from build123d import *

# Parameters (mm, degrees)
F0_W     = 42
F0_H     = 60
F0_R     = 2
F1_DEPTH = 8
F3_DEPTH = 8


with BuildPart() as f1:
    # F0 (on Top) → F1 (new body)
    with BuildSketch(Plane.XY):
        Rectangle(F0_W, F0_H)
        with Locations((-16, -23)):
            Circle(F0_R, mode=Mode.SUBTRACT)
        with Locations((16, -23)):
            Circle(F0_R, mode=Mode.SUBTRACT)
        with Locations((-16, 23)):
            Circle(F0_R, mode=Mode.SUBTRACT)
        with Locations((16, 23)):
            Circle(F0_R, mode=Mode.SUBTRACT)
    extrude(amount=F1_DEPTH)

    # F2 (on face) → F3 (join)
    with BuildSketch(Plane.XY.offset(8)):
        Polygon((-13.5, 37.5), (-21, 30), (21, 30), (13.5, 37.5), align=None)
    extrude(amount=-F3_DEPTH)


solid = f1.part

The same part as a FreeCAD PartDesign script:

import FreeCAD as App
import Part
import Sketcher
from FreeCAD import Vector
Q = App.Units.Quantity


def add_polygon(sketch, points):
    """Adds a closed chain of lines whose ends are joined by coincident constraints."""
    first, n = sketch.GeometryCount, len(points)
    for a, b in zip(points, points[1:] + points[:1]):
        sketch.addGeometry(Part.LineSegment(App.Vector(*a, 0), App.Vector(*b, 0)), False)
    for i in range(n):
        sketch.addConstraint(Sketcher.Constraint("Coincident", first + i, 2, first + (i + 1) % n, 1))

doc = App.newDocument("Part")
params = doc.addObject("Spreadsheet::Sheet", "Params")
for row, (alias, value) in enumerate([
    ("sketch1_diameter", "4 mm"),
    ("sketch1_width", "42 mm"),
    ("sketch1_height", "60 mm"),
    ("pad1_length", "8 mm"),
    ("sketch2_width", "42 mm"),
    ("sketch2_width2", "27 mm"),
    ("pad2_length", "8 mm"),
], start=1):
    params.set(f"A{row}", alias)
    params.set(f"B{row}", "=" + value)
    params.setAlias(f"B{row}", alias)

body = doc.addObject("PartDesign::Body", "Body")

# Sketch on XY plane
sketch1 = body.newObject("Sketcher::SketchObject", "Sketch")
sketch1.AttachmentSupport = (doc.getObject("XY_Plane"), [""])
sketch1.MapMode = "FlatFace"
add_polygon(sketch1, [(-21, 30), (-21, -30), (21, -30), (21, 30)])  # lines 0-3
sketch1.addGeometry(Part.Circle(Vector(-16, -23, 0), Vector(0, 0, 1), 2), False)  # 4
sketch1.addGeometry(Part.Circle(Vector(16, -23, 0), Vector(0, 0, 1), 2), False)  # 5
sketch1.addGeometry(Part.Circle(Vector(-16, 23, 0), Vector(0, 0, 1), 2), False)  # 6
sketch1.addGeometry(Part.Circle(Vector(16, 23, 0), Vector(0, 0, 1), 2), False)  # 7
sketch1.addConstraint([
    Sketcher.Constraint("Vertical", 0),
    Sketcher.Constraint("Horizontal", 1),
    Sketcher.Constraint("Vertical", 2),
    Sketcher.Constraint("Horizontal", 3),
    Sketcher.Constraint("Equal", 4, 5),
    Sketcher.Constraint("Equal", 5, 6),
    Sketcher.Constraint("Equal", 6, 7),
    Sketcher.Constraint("Symmetric", 5, 3, 6, 3, -1, 1),
    Sketcher.Constraint("Symmetric", 4, 3, 7, 3, -1, 1),
    Sketcher.Constraint("Symmetric", 0, 2, 2, 2, -1, 1),
    Sketcher.Constraint("Symmetric", 4, 3, 5, 3, -2),
    Sketcher.Constraint("Diameter", 4, Q("4 mm")),
    Sketcher.Constraint("DistanceX", 1, 1, 1, 2, Q("42 mm")),
    Sketcher.Constraint("DistanceY", 0, 2, 0, 1, Q("60 mm")),
    Sketcher.Constraint("DistanceX", 4, 3, -1, 1, Q("16 mm")),
    Sketcher.Constraint("DistanceY", 4, 3, -1, 1, Q("23 mm")),
])
sketch1.setExpression("Constraints[15]", "Params.sketch1_diameter")
sketch1.setExpression("Constraints[16]", "Params.sketch1_width")
sketch1.setExpression("Constraints[17]", "Params.sketch1_height")
pad1 = body.newObject("PartDesign::Pad", "Pad")
pad1.Profile = sketch1
pad1.setExpression("Length", "Params.pad1_length")

# Sketch on XY plane
sketch2 = body.newObject("Sketcher::SketchObject", "Sketch001")
sketch2.AttachmentSupport = (doc.getObject("XY_Plane"), [""])
sketch2.MapMode = "FlatFace"
sketch2.AttachmentOffset = App.Placement(Vector(0, 0, 8), App.Rotation())
add_polygon(sketch2, [(-13.5, 37.5), (-21, 30), (21, 30), (13.5, 37.5)])  # lines 0-3
sketch2.addConstraint([
    Sketcher.Constraint("Horizontal", 1),
    Sketcher.Constraint("Horizontal", 3),
    Sketcher.Constraint("Perpendicular", 0, 2),
    Sketcher.Constraint("Equal", 0, 2),
    Sketcher.Constraint("DistanceX", 1, 1, 1, 2, Q("42 mm")),
    Sketcher.Constraint("DistanceX", 3, 2, 3, 1, Q("27 mm")),
    Sketcher.Constraint("DistanceX", 0, 2, -1, 1, Q("21 mm")),
    Sketcher.Constraint("DistanceY", -1, 1, 0, 2, Q("30 mm")),
])
sketch2.setExpression("Constraints[8]", "Params.sketch2_width")
sketch2.setExpression("Constraints[9]", "Params.sketch2_width2")
pad2 = body.newObject("PartDesign::Pad", "Pad001")
pad2.Profile = sketch2
pad2.setExpression("Length", "Params.pad2_length")
pad2.Reversed = True

doc.recompute()
